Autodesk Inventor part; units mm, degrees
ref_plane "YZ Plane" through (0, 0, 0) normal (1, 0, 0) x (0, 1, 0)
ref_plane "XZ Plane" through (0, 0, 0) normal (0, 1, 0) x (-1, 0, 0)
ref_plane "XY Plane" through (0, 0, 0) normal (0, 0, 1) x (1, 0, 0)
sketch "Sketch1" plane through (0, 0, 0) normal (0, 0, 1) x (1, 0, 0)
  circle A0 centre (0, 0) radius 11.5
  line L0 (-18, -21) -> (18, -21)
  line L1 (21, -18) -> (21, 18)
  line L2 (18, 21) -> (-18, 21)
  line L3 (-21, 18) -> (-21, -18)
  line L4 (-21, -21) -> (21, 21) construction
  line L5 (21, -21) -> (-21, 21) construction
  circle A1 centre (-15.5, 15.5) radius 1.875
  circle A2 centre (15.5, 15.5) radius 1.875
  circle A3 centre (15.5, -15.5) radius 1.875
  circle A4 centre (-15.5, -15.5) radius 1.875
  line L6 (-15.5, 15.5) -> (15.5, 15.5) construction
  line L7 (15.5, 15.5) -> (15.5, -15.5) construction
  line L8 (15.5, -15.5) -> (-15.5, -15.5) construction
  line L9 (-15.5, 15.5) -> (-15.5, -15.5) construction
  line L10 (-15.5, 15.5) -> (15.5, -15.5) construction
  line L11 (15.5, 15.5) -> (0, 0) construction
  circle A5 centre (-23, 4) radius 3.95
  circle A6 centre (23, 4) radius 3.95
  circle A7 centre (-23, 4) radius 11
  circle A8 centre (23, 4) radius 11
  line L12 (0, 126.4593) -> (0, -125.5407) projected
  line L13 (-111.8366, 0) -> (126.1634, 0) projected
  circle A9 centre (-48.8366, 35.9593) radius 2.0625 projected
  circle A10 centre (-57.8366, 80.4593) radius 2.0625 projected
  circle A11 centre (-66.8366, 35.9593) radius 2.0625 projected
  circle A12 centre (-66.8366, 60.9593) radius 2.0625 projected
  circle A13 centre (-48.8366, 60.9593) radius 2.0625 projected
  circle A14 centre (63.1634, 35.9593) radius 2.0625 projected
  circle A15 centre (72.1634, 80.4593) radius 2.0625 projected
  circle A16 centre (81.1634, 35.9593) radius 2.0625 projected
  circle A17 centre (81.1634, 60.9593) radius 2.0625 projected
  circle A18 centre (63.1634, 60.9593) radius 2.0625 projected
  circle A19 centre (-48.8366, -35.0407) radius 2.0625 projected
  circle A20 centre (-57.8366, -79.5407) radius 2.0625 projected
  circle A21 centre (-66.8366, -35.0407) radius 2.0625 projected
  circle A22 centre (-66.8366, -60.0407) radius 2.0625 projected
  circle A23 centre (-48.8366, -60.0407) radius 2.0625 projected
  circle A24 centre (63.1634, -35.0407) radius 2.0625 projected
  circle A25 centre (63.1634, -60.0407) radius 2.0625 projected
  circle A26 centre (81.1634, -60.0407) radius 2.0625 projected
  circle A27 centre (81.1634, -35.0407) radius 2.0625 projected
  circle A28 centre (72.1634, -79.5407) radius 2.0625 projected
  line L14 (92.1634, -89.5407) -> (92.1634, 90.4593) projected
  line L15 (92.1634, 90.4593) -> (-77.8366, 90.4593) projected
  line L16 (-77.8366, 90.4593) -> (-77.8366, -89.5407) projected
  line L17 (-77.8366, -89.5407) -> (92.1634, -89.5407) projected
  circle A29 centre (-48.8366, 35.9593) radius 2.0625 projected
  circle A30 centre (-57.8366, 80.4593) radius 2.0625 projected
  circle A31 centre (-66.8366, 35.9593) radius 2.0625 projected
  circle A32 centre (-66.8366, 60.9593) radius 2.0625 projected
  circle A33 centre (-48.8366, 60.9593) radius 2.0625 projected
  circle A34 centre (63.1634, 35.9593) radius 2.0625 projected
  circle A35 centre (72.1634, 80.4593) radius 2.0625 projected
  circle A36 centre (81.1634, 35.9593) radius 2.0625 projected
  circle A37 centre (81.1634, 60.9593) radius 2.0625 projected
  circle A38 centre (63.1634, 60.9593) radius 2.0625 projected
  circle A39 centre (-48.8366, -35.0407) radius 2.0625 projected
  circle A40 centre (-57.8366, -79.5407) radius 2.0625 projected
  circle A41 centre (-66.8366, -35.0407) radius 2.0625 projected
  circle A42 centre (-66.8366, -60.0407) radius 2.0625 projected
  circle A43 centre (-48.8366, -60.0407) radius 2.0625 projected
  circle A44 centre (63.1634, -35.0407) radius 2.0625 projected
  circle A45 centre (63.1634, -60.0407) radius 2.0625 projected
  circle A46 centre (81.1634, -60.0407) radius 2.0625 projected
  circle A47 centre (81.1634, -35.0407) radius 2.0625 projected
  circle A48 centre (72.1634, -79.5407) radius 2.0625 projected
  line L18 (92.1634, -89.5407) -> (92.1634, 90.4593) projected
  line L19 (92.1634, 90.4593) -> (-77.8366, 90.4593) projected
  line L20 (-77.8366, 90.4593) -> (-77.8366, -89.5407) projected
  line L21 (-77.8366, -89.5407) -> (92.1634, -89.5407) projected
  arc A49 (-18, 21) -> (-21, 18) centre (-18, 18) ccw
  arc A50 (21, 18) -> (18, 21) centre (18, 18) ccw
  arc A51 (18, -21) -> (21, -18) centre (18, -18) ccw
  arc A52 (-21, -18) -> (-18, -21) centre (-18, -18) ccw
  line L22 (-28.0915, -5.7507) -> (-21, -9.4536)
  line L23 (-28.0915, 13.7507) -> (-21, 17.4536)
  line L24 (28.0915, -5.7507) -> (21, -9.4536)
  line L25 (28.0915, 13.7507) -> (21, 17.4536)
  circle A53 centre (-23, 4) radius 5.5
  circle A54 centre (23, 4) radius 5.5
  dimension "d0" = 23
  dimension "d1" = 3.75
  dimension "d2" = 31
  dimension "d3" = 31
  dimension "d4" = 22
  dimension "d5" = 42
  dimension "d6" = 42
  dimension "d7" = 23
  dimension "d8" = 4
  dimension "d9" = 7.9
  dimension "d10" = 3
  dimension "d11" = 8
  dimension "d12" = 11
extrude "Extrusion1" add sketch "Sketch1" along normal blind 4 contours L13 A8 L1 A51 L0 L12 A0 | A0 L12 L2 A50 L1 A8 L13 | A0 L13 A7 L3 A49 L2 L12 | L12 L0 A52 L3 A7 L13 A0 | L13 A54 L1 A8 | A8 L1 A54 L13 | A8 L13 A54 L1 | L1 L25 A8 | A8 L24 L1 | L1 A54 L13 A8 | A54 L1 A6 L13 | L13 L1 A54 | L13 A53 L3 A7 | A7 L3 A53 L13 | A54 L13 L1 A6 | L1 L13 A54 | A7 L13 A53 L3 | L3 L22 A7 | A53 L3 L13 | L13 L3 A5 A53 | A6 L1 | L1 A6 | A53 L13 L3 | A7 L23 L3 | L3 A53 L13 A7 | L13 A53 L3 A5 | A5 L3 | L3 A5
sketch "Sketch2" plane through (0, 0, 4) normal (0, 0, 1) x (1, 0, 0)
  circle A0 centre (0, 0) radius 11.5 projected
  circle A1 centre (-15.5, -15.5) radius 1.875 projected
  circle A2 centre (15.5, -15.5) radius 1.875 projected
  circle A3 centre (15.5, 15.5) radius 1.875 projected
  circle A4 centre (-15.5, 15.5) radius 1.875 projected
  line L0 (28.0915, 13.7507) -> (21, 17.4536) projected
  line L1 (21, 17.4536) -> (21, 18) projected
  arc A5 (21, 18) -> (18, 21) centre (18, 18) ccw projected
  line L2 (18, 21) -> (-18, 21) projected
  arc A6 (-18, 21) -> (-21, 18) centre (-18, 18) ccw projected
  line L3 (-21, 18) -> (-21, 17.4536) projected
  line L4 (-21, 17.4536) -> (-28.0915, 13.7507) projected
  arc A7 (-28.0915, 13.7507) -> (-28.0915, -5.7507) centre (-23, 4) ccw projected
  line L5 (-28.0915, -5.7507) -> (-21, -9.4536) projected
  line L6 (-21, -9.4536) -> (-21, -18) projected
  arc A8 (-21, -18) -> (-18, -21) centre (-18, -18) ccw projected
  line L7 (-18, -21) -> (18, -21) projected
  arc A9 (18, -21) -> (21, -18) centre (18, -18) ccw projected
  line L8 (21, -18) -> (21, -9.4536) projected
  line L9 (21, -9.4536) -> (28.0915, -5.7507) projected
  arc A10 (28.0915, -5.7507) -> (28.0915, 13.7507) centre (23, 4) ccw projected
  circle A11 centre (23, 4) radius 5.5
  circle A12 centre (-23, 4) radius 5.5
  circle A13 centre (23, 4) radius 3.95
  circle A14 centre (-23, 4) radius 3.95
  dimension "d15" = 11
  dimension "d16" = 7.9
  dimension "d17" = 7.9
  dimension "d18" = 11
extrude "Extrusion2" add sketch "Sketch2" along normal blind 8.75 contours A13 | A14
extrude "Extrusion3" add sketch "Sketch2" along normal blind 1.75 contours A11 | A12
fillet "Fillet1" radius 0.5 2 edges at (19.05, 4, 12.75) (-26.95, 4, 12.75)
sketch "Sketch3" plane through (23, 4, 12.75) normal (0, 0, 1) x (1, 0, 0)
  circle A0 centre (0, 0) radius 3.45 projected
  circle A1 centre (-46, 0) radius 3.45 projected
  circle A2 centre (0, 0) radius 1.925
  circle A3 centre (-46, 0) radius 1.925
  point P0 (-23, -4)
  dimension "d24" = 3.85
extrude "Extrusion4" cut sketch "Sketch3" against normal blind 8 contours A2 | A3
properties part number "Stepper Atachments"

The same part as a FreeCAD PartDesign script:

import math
import FreeCAD as App
import Part
import Sketcher
Q = App.Units.Quantity


def edges_at(feature, points):
    """Names of the edges that pass closest to the given points."""
    edges = feature.Shape.Edges
    near = lambda p: min(range(len(edges)), key=lambda i: edges[i].distToShape(Part.Vertex(*p))[0])
    return sorted({f"Edge{near(p) + 1}" for p in points})

doc = App.newDocument("Part")
body = doc.addObject("PartDesign::Body", "Body")

# Sketch on XY plane
sketch1 = body.newObject("Sketcher::SketchObject", "Sketch")
sketch1.AttachmentSupport = (doc.getObject("XY_Plane"), [""])
sketch1.MapMode = "FlatFace"
sketch1.addGeometry([
    Part.LineSegment(App.Vector(21, -18, 0), App.Vector(21, -9.5, 0)),  # 0
    Part.LineSegment(App.Vector(21, -9.5, 0), App.Vector(28.1, -5.8, 0)),  # 1
    Part.ArcOfCircle(Part.Circle(App.Vector(23, 4, 0), App.Vector(0, 0, 1), 11), math.radians(-62), math.radians(62)),  # 2
    Part.LineSegment(App.Vector(28.1, 13.8, 0), App.Vector(21, 17.5, 0)),  # 3
    Part.LineSegment(App.Vector(21, 17.5, 0), App.Vector(21, 18, 0)),  # 4
    Part.ArcOfCircle(Part.Circle(App.Vector(18, 18, 0), App.Vector(0, 0, 1), 3), math.radians(0), math.radians(90)),  # 5
    Part.LineSegment(App.Vector(18, 21, 0), App.Vector(-18, 21, 0)),  # 6
    Part.ArcOfCircle(Part.Circle(App.Vector(-18, 18, 0), App.Vector(0, 0, 1), 3), math.radians(90), math.radians(180)),  # 7
    Part.LineSegment(App.Vector(-21, 18, 0), App.Vector(-21, 17.5, 0)),  # 8
    Part.LineSegment(App.Vector(-21, 17.5, 0), App.Vector(-28.1, 13.8, 0)),  # 9
    Part.ArcOfCircle(Part.Circle(App.Vector(-23, 4, 0), App.Vector(0, 0, 1), 11), math.radians(118), math.radians(242)),  # 10
    Part.LineSegment(App.Vector(-28.1, -5.8, 0), App.Vector(-21, -9.5, 0)),  # 11
    Part.LineSegment(App.Vector(-21, -9.5, 0), App.Vector(-21, -18, 0)),  # 12
    Part.ArcOfCircle(Part.Circle(App.Vector(-18, -18, 0), App.Vector(0, 0, 1), 3), math.radians(180), math.radians(270)),  # 13
    Part.LineSegment(App.Vector(-18, -21, 0), App.Vector(18, -21, 0)),  # 14
    Part.ArcOfCircle(Part.Circle(App.Vector(18, -18, 0), App.Vector(0, 0, 1), 3), math.radians(-90), math.radians(0)),  # 15
    Part.Circle(App.Vector(0, 0, 0), App.Vector(0, 0, 1), 11.5),  # 16
    Part.Circle(App.Vector(15.5, -15.5, 0), App.Vector(0, 0, 1), 1.9),  # 17
    Part.Circle(App.Vector(15.5, 15.5, 0), App.Vector(0, 0, 1), 1.9),  # 18
    Part.Circle(App.Vector(-15.5, -15.5, 0), App.Vector(0, 0, 1), 1.9),  # 19
    Part.Circle(App.Vector(-15.5, 15.5, 0), App.Vector(0, 0, 1), 1.9),  # 20
], False)
sketch1.addConstraint([
    Sketcher.Constraint("Coincident", 0, 2, 1, 1),
    Sketcher.Constraint("Tangent", 1, 2, 2, 1),
    Sketcher.Constraint("Tangent", 2, 2, 3, 1),
    Sketcher.Constraint("Coincident", 3, 2, 4, 1),
    Sketcher.Constraint("Tangent", 4, 2, 5, 1),
    Sketcher.Constraint("Tangent", 5, 2, 6, 1),
    Sketcher.Constraint("Tangent", 6, 2, 7, 1),
    Sketcher.Constraint("Tangent", 7, 2, 8, 1),
    Sketcher.Constraint("Coincident", 8, 2, 9, 1),
    Sketcher.Constraint("Tangent", 9, 2, 10, 1),
    Sketcher.Constraint("Tangent", 10, 2, 11, 1),
    Sketcher.Constraint("Coincident", 11, 2, 12, 1),
    Sketcher.Constraint("Tangent", 12, 2, 13, 1),
    Sketcher.Constraint("Tangent", 13, 2, 14, 1),
    Sketcher.Constraint("Tangent", 14, 2, 15, 1),
    Sketcher.Constraint("Tangent", 15, 2, 0, 1),
    Sketcher.Constraint("Vertical", 0),
    Sketcher.Constraint("Vertical", 4),
    Sketcher.Constraint("Horizontal", 6),
    Sketcher.Constraint("Vertical", 8),
    Sketcher.Constraint("Vertical", 12),
    Sketcher.Constraint("Horizontal", 14),
    Sketcher.Constraint("Coincident", 16, 3, -1, 1),
    Sketcher.Constraint("Equal", 5, 7),
    Sketcher.Constraint("Equal", 2, 10),
    Sketcher.Constraint("Equal", 7, 13),
    Sketcher.Constraint("Equal", 13, 15),
    Sketcher.Constraint("Equal", 17, 18),
    Sketcher.Constraint("Equal", 18, 19),
    Sketcher.Constraint("Equal", 19, 20),
    Sketcher.Constraint("Symmetric", 5, 3, 13, 3, -1, 1),
    Sketcher.Constraint("Symmetric", 18, 3, 19, 3, -1, 1),
    Sketcher.Constraint("Symmetric", 17, 3, 20, 3, -1, 1),
    Sketcher.Constraint("Symmetric", 2, 3, 10, 3, -2),
    Sketcher.Constraint("Symmetric", 17, 3, 19, 3, -2),
    Sketcher.Constraint("Symmetric", 3, 2, 8, 2, -2),
    Sketcher.Constraint("Symmetric", 0, 2, 11, 2, -2),
    Sketcher.Constraint("Parallel", 1, 9),
    Sketcher.Constraint("Diameter", 16, Q("23 mm")),
    Sketcher.Constraint("Radius", 2, Q("11 mm")),
    Sketcher.Constraint("Radius", 5, Q("3 mm")),
    Sketcher.Constraint("Diameter", 17, Q("3.75 mm")),
    Sketcher.Constraint("Distance", 1, Q("8 mm")),
    Sketcher.Constraint("DistanceX", -1, 1, 2, 3, Q("23 mm")),
    Sketcher.Constraint("DistanceY", -1, 1, 2, 3, Q("4 mm")),
    Sketcher.Constraint("DistanceY", 13, 3, 10, 3, Q("22 mm")),
    Sketcher.Constraint("DistanceY", 17, 3, 18, 3, Q("31 mm")),
    Sketcher.Constraint("DistanceX", 19, 3, 17, 3, Q("31 mm")),
    Sketcher.Constraint("DistanceX", 6, 2, 6, 1, Q("36 mm")),
])
pad1 = body.newObject("PartDesign::Pad", "Pad")
pad1.Profile = sketch1
pad1.Length = 4

# Sketch on XY plane
sketch2 = body.newObject("Sketcher::SketchObject", "Sketch001")
sketch2.AttachmentSupport = (doc.getObject("XY_Plane"), [""])
sketch2.MapMode = "FlatFace"
sketch2.AttachmentOffset = App.Placement(App.Vector(0, 0, 4), App.Rotation())
sketch2.addGeometry([
    Part.Circle(App.Vector(23, 4, 0), App.Vector(0, 0, 1), 4),
    Part.Circle(App.Vector(-23, 4, 0), App.Vector(0, 0, 1), 4),
], False)
sketch2.addConstraint([
    Sketcher.Constraint("Equal", 0, 1),
    Sketcher.Constraint("Symmetric", 0, 3, 1, 3, -2),
    Sketcher.Constraint("Diameter", 0, Q("7.9 mm")),
    Sketcher.Constraint("DistanceX", -1, 1, 0, 3, Q("23 mm")),
    Sketcher.Constraint("DistanceY", -1, 1, 0, 3, Q("4 mm")),
])
pad2 = body.newObject("PartDesign::Pad", "Pad001")
pad2.Profile = sketch2
pad2.Length = 8.75

# Sketch on XY plane
sketch3 = body.newObject("Sketcher::SketchObject", "Sketch002")
sketch3.AttachmentSupport = (doc.getObject("XY_Plane"), [""])
sketch3.MapMode = "FlatFace"
sketch3.AttachmentOffset = App.Placement(App.Vector(0, 0, 4), App.Rotation())
sketch3.addGeometry([
    Part.Circle(App.Vector(23, 4, 0), App.Vector(0, 0, 1), 5.5),
    Part.Circle(App.Vector(23, 4, 0), App.Vector(0, 0, 1), 4),
    Part.Circle(App.Vector(-23, 4, 0), App.Vector(0, 0, 1), 5.5),
    Part.Circle(App.Vector(-23, 4, 0), App.Vector(0, 0, 1), 4),
], False)
sketch3.addConstraint([
    Sketcher.Constraint("Coincident", 1, 3, 0, 3),
    Sketcher.Constraint("Coincident", 3, 3, 2, 3),
    Sketcher.Constraint("Equal", 0, 2),
    Sketcher.Constraint("Equal", 1, 3),
    Sketcher.Constraint("Symmetric", 0, 3, 2, 3, -2),
    Sketcher.Constraint("Diameter", 0, Q("11 mm")),
    Sketcher.Constraint("Diameter", 1, Q("7.9 mm")),
    Sketcher.Constraint("DistanceX", -1, 1, 0, 3, Q("23 mm")),
    Sketcher.Constraint("DistanceY", -1, 1, 0, 3, Q("4 mm")),
])
pad3 = body.newObject("PartDesign::Pad", "Pad002")
pad3.Profile = sketch3
pad3.Length = 1.75
doc.recompute()

fillet = body.newObject("PartDesign::Fillet", "Fillet")
fillet.Base = (pad3, edges_at(pad3, [(19.05, 4, 12.75), (-26.95, 4, 12.75)]))
fillet.Radius = 0.5

# Sketch on XY plane
sketch4 = body.newObject("Sketcher::SketchObject", "Sketch003")
sketch4.AttachmentSupport = (doc.getObject("XY_Plane"), [""])
sketch4.MapMode = "FlatFace"
sketch4.AttachmentOffset = App.Placement(App.Vector(0, 0, 12.75), App.Rotation())
sketch4.addGeometry([
    Part.Circle(App.Vector(23, 4, 0), App.Vector(0, 0, 1), 1.9),
    Part.Circle(App.Vector(-23, 4, 0), App.Vector(0, 0, 1), 1.9),
], False)
sketch4.addConstraint([
    Sketcher.Constraint("Equal", 0, 1),
    Sketcher.Constraint("Symmetric", 0, 3, 1, 3, -2),
    Sketcher.Constraint("Diameter", 0, Q("3.85 mm")),
    Sketcher.Constraint("DistanceX", -1, 1, 0, 3, Q("23 mm")),
    Sketcher.Constraint("DistanceY", -1, 1, 0, 3, Q("4 mm")),
])
pocket1 = body.newObject("PartDesign::Pocket", "Pocket")
pocket1.Profile = sketch4
pocket1.Length = 8

doc.recompute()
